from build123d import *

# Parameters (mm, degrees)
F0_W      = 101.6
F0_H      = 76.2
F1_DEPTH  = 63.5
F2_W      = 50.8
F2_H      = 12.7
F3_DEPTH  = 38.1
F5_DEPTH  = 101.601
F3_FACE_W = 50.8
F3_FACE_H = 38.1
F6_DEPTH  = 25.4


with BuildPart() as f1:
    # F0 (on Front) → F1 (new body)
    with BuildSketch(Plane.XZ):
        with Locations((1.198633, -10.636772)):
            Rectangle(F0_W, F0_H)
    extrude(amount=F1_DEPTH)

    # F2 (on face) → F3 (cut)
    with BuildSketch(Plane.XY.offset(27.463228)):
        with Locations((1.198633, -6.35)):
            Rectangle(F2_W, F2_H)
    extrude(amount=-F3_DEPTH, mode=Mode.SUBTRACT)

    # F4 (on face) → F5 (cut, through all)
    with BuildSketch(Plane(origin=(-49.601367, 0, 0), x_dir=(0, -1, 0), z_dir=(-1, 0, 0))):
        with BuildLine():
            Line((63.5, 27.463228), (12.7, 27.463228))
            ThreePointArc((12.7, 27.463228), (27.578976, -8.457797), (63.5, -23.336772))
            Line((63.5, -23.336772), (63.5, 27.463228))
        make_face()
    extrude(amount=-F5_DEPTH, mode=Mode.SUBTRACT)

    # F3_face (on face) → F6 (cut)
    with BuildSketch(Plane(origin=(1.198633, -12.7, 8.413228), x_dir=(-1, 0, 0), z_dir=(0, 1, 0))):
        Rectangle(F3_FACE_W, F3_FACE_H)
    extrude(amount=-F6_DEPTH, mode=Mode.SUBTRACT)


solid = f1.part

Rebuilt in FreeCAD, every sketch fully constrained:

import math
import FreeCAD as App
import Part
import Sketcher
Q = App.Units.Quantity


def add_polygon(sketch, points):
    """Adds a closed chain of lines whose ends are joined by coincident constraints."""
    first, n = sketch.GeometryCount, len(points)
    for a, b in zip(points, points[1:] + points[:1]):
        sketch.addGeometry(Part.LineSegment(App.Vector(*a, 0), App.Vector(*b, 0)), False)
    for i in range(n):
        sketch.addConstraint(Sketcher.Constraint("Coincident", first + i, 2, first + (i + 1) % n, 1))

doc = App.newDocument("Part")
body = doc.addObject("PartDesign::Body", "Body")

# Sketch on XZ plane
sketch1 = doc.addObject("Sketcher::SketchObject", "Sketch")
body.addObject(sketch1)
sketch1.AttachmentSupport = (doc.XZ_Plane, [""])
sketch1.MapMode = "FlatFace"
add_polygon(sketch1, [(-50, 27), (-50, -49), (52, -49), (52, 27)])  # lines 0-3
sketch1.addConstraint(Sketcher.Constraint("Vertical", 0))
sketch1.addConstraint(Sketcher.Constraint("Horizontal", 1))
sketch1.addConstraint(Sketcher.Constraint("Vertical", 2))
sketch1.addConstraint(Sketcher.Constraint("Horizontal", 3))
sketch1.addConstraint(Sketcher.Constraint("DistanceX", 1, 1, 1, 2, Q("4 in")))
sketch1.addConstraint(Sketcher.Constraint("DistanceY", 0, 2, 0, 1, Q("3 in")))
sketch1.addConstraint(Sketcher.Constraint("DistanceY", -1, 1, 2, 2, Q("27.463228 mm")))
sketch1.addConstraint(Sketcher.Constraint("DistanceX", 0, 2, -1, 1, Q("49.601367 mm")))
pad1 = doc.addObject("PartDesign::Pad", "Pad")
body.addObject(pad1)
pad1.Profile = sketch1
pad1.Length = Q("2.5 in")

# Sketch on XY plane
sketch2 = doc.addObject("Sketcher::SketchObject", "Sketch001")
body.addObject(sketch2)
sketch2.AttachmentSupport = (doc.XY_Plane, [""])
sketch2.MapMode = "FlatFace"
sketch2.AttachmentOffset = App.Placement(App.Vector(0, 0, 27.463228), App.Rotation())
add_polygon(sketch2, [(-24, 0), (-24, -13), (27, -13), (27, 0)])  # lines 0-3
sketch2.addConstraint(Sketcher.Constraint("Vertical", 0))
sketch2.addConstraint(Sketcher.Constraint("Horizontal", 1))
sketch2.addConstraint(Sketcher.Constraint("Vertical", 2))
sketch2.addConstraint(Sketcher.Constraint("Horizontal", 3))
sketch2.addConstraint(Sketcher.Constraint("PointOnObject", 2, 2, -1))
sketch2.addConstraint(Sketcher.Constraint("DistanceX", 1, 1, 1, 2, Q("2 in")))
sketch2.addConstraint(Sketcher.Constraint("DistanceY", 0, 2, 0, 1, Q("0.5 in")))
sketch2.addConstraint(Sketcher.Constraint("DistanceX", 0, 2, -1, 1, Q("24.201367 mm")))
pocket1 = doc.addObject("PartDesign::Pocket", "Pocket")
body.addObject(pocket1)
pocket1.Profile = sketch2
pocket1.Length = Q("1.5 in")

# Sketch on YZ plane
sketch3 = doc.addObject("Sketcher::SketchObject", "Sketch002")
body.addObject(sketch3)
sketch3.AttachmentSupport = (doc.YZ_Plane, [""])
sketch3.MapMode = "FlatFace"
sketch3.AttachmentOffset = App.Placement(App.Vector(0, 0, -49.601367), App.Rotation())
sketch3.addGeometry(Part.LineSegment(App.Vector(-64, 27, 0), App.Vector(-13, 27, 0)), False)
sketch3.addGeometry(Part.ArcOfCircle(Part.Circle(App.Vector(-63, 27, 0), App.Vector(0, 0, 1), 51), math.radians(-90), math.radians(0)), False)
sketch3.addGeometry(Part.LineSegment(App.Vector(-64, -23, 0), App.Vector(-64, 27, 0)), False)
sketch3.addConstraint(Sketcher.Constraint("Coincident", 0, 2, 1, 2))
sketch3.addConstraint(Sketcher.Constraint("Coincident", 1, 1, 2, 1))
sketch3.addConstraint(Sketcher.Constraint("Coincident", 2, 2, 0, 1))
sketch3.addConstraint(Sketcher.Constraint("Horizontal", 0))
sketch3.addConstraint(Sketcher.Constraint("Vertical", 2))
sketch3.addConstraint(Sketcher.Constraint("Coincident", 2, 2, 1, 3))
sketch3.addConstraint(Sketcher.Constraint("Radius", 1, Q("2 in")))
sketch3.addConstraint(Sketcher.Constraint("DistanceX", 1, 3, -1, 1, Q("2.5 in")))
sketch3.addConstraint(Sketcher.Constraint("DistanceY", -1, 1, 0, 2, Q("27.463228 mm")))
pocket2 = doc.addObject("PartDesign::Pocket", "Pocket001")
body.addObject(pocket2)
pocket2.Profile = sketch3
pocket2.Type = "ThroughAll"
pocket2.Reversed = True

# Sketch on XZ plane
sketch4 = doc.addObject("Sketcher::SketchObject", "Sketch003")
body.addObject(sketch4)
sketch4.AttachmentSupport = (doc.XZ_Plane, [""])
sketch4.MapMode = "FlatFace"
sketch4.AttachmentOffset = App.Placement(App.Vector(0, 0, 0.5 * 25.4), App.Rotation())
add_polygon(sketch4, [(27, 27), (27, -11), (-24, -11), (-24, 27)])  # lines 0-3
sketch4.addConstraint(Sketcher.Constraint("Vertical", 0))
sketch4.addConstraint(Sketcher.Constraint("Horizontal", 1))
sketch4.addConstraint(Sketcher.Constraint("Vertical", 2))
sketch4.addConstraint(Sketcher.Constraint("Horizontal", 3))
sketch4.addConstraint(Sketcher.Constraint("DistanceX", 1, 2, 1, 1, Q("2 in")))
sketch4.addConstraint(Sketcher.Constraint("DistanceY", 0, 2, 0, 1, Q("1.5 in")))
sketch4.addConstraint(Sketcher.Constraint("DistanceY", -1, 1, 2, 2, Q("27.463228 mm")))
sketch4.addConstraint(Sketcher.Constraint("DistanceX", -1, 1, 0, 2, Q("26.598633 mm")))
pocket3 = doc.addObject("PartDesign::Pocket", "Pocket002")
body.addObject(pocket3)
pocket3.Profile = sketch4
pocket3.Length = Q("1 in")
pocket3.Reversed = True

doc.recompute()
